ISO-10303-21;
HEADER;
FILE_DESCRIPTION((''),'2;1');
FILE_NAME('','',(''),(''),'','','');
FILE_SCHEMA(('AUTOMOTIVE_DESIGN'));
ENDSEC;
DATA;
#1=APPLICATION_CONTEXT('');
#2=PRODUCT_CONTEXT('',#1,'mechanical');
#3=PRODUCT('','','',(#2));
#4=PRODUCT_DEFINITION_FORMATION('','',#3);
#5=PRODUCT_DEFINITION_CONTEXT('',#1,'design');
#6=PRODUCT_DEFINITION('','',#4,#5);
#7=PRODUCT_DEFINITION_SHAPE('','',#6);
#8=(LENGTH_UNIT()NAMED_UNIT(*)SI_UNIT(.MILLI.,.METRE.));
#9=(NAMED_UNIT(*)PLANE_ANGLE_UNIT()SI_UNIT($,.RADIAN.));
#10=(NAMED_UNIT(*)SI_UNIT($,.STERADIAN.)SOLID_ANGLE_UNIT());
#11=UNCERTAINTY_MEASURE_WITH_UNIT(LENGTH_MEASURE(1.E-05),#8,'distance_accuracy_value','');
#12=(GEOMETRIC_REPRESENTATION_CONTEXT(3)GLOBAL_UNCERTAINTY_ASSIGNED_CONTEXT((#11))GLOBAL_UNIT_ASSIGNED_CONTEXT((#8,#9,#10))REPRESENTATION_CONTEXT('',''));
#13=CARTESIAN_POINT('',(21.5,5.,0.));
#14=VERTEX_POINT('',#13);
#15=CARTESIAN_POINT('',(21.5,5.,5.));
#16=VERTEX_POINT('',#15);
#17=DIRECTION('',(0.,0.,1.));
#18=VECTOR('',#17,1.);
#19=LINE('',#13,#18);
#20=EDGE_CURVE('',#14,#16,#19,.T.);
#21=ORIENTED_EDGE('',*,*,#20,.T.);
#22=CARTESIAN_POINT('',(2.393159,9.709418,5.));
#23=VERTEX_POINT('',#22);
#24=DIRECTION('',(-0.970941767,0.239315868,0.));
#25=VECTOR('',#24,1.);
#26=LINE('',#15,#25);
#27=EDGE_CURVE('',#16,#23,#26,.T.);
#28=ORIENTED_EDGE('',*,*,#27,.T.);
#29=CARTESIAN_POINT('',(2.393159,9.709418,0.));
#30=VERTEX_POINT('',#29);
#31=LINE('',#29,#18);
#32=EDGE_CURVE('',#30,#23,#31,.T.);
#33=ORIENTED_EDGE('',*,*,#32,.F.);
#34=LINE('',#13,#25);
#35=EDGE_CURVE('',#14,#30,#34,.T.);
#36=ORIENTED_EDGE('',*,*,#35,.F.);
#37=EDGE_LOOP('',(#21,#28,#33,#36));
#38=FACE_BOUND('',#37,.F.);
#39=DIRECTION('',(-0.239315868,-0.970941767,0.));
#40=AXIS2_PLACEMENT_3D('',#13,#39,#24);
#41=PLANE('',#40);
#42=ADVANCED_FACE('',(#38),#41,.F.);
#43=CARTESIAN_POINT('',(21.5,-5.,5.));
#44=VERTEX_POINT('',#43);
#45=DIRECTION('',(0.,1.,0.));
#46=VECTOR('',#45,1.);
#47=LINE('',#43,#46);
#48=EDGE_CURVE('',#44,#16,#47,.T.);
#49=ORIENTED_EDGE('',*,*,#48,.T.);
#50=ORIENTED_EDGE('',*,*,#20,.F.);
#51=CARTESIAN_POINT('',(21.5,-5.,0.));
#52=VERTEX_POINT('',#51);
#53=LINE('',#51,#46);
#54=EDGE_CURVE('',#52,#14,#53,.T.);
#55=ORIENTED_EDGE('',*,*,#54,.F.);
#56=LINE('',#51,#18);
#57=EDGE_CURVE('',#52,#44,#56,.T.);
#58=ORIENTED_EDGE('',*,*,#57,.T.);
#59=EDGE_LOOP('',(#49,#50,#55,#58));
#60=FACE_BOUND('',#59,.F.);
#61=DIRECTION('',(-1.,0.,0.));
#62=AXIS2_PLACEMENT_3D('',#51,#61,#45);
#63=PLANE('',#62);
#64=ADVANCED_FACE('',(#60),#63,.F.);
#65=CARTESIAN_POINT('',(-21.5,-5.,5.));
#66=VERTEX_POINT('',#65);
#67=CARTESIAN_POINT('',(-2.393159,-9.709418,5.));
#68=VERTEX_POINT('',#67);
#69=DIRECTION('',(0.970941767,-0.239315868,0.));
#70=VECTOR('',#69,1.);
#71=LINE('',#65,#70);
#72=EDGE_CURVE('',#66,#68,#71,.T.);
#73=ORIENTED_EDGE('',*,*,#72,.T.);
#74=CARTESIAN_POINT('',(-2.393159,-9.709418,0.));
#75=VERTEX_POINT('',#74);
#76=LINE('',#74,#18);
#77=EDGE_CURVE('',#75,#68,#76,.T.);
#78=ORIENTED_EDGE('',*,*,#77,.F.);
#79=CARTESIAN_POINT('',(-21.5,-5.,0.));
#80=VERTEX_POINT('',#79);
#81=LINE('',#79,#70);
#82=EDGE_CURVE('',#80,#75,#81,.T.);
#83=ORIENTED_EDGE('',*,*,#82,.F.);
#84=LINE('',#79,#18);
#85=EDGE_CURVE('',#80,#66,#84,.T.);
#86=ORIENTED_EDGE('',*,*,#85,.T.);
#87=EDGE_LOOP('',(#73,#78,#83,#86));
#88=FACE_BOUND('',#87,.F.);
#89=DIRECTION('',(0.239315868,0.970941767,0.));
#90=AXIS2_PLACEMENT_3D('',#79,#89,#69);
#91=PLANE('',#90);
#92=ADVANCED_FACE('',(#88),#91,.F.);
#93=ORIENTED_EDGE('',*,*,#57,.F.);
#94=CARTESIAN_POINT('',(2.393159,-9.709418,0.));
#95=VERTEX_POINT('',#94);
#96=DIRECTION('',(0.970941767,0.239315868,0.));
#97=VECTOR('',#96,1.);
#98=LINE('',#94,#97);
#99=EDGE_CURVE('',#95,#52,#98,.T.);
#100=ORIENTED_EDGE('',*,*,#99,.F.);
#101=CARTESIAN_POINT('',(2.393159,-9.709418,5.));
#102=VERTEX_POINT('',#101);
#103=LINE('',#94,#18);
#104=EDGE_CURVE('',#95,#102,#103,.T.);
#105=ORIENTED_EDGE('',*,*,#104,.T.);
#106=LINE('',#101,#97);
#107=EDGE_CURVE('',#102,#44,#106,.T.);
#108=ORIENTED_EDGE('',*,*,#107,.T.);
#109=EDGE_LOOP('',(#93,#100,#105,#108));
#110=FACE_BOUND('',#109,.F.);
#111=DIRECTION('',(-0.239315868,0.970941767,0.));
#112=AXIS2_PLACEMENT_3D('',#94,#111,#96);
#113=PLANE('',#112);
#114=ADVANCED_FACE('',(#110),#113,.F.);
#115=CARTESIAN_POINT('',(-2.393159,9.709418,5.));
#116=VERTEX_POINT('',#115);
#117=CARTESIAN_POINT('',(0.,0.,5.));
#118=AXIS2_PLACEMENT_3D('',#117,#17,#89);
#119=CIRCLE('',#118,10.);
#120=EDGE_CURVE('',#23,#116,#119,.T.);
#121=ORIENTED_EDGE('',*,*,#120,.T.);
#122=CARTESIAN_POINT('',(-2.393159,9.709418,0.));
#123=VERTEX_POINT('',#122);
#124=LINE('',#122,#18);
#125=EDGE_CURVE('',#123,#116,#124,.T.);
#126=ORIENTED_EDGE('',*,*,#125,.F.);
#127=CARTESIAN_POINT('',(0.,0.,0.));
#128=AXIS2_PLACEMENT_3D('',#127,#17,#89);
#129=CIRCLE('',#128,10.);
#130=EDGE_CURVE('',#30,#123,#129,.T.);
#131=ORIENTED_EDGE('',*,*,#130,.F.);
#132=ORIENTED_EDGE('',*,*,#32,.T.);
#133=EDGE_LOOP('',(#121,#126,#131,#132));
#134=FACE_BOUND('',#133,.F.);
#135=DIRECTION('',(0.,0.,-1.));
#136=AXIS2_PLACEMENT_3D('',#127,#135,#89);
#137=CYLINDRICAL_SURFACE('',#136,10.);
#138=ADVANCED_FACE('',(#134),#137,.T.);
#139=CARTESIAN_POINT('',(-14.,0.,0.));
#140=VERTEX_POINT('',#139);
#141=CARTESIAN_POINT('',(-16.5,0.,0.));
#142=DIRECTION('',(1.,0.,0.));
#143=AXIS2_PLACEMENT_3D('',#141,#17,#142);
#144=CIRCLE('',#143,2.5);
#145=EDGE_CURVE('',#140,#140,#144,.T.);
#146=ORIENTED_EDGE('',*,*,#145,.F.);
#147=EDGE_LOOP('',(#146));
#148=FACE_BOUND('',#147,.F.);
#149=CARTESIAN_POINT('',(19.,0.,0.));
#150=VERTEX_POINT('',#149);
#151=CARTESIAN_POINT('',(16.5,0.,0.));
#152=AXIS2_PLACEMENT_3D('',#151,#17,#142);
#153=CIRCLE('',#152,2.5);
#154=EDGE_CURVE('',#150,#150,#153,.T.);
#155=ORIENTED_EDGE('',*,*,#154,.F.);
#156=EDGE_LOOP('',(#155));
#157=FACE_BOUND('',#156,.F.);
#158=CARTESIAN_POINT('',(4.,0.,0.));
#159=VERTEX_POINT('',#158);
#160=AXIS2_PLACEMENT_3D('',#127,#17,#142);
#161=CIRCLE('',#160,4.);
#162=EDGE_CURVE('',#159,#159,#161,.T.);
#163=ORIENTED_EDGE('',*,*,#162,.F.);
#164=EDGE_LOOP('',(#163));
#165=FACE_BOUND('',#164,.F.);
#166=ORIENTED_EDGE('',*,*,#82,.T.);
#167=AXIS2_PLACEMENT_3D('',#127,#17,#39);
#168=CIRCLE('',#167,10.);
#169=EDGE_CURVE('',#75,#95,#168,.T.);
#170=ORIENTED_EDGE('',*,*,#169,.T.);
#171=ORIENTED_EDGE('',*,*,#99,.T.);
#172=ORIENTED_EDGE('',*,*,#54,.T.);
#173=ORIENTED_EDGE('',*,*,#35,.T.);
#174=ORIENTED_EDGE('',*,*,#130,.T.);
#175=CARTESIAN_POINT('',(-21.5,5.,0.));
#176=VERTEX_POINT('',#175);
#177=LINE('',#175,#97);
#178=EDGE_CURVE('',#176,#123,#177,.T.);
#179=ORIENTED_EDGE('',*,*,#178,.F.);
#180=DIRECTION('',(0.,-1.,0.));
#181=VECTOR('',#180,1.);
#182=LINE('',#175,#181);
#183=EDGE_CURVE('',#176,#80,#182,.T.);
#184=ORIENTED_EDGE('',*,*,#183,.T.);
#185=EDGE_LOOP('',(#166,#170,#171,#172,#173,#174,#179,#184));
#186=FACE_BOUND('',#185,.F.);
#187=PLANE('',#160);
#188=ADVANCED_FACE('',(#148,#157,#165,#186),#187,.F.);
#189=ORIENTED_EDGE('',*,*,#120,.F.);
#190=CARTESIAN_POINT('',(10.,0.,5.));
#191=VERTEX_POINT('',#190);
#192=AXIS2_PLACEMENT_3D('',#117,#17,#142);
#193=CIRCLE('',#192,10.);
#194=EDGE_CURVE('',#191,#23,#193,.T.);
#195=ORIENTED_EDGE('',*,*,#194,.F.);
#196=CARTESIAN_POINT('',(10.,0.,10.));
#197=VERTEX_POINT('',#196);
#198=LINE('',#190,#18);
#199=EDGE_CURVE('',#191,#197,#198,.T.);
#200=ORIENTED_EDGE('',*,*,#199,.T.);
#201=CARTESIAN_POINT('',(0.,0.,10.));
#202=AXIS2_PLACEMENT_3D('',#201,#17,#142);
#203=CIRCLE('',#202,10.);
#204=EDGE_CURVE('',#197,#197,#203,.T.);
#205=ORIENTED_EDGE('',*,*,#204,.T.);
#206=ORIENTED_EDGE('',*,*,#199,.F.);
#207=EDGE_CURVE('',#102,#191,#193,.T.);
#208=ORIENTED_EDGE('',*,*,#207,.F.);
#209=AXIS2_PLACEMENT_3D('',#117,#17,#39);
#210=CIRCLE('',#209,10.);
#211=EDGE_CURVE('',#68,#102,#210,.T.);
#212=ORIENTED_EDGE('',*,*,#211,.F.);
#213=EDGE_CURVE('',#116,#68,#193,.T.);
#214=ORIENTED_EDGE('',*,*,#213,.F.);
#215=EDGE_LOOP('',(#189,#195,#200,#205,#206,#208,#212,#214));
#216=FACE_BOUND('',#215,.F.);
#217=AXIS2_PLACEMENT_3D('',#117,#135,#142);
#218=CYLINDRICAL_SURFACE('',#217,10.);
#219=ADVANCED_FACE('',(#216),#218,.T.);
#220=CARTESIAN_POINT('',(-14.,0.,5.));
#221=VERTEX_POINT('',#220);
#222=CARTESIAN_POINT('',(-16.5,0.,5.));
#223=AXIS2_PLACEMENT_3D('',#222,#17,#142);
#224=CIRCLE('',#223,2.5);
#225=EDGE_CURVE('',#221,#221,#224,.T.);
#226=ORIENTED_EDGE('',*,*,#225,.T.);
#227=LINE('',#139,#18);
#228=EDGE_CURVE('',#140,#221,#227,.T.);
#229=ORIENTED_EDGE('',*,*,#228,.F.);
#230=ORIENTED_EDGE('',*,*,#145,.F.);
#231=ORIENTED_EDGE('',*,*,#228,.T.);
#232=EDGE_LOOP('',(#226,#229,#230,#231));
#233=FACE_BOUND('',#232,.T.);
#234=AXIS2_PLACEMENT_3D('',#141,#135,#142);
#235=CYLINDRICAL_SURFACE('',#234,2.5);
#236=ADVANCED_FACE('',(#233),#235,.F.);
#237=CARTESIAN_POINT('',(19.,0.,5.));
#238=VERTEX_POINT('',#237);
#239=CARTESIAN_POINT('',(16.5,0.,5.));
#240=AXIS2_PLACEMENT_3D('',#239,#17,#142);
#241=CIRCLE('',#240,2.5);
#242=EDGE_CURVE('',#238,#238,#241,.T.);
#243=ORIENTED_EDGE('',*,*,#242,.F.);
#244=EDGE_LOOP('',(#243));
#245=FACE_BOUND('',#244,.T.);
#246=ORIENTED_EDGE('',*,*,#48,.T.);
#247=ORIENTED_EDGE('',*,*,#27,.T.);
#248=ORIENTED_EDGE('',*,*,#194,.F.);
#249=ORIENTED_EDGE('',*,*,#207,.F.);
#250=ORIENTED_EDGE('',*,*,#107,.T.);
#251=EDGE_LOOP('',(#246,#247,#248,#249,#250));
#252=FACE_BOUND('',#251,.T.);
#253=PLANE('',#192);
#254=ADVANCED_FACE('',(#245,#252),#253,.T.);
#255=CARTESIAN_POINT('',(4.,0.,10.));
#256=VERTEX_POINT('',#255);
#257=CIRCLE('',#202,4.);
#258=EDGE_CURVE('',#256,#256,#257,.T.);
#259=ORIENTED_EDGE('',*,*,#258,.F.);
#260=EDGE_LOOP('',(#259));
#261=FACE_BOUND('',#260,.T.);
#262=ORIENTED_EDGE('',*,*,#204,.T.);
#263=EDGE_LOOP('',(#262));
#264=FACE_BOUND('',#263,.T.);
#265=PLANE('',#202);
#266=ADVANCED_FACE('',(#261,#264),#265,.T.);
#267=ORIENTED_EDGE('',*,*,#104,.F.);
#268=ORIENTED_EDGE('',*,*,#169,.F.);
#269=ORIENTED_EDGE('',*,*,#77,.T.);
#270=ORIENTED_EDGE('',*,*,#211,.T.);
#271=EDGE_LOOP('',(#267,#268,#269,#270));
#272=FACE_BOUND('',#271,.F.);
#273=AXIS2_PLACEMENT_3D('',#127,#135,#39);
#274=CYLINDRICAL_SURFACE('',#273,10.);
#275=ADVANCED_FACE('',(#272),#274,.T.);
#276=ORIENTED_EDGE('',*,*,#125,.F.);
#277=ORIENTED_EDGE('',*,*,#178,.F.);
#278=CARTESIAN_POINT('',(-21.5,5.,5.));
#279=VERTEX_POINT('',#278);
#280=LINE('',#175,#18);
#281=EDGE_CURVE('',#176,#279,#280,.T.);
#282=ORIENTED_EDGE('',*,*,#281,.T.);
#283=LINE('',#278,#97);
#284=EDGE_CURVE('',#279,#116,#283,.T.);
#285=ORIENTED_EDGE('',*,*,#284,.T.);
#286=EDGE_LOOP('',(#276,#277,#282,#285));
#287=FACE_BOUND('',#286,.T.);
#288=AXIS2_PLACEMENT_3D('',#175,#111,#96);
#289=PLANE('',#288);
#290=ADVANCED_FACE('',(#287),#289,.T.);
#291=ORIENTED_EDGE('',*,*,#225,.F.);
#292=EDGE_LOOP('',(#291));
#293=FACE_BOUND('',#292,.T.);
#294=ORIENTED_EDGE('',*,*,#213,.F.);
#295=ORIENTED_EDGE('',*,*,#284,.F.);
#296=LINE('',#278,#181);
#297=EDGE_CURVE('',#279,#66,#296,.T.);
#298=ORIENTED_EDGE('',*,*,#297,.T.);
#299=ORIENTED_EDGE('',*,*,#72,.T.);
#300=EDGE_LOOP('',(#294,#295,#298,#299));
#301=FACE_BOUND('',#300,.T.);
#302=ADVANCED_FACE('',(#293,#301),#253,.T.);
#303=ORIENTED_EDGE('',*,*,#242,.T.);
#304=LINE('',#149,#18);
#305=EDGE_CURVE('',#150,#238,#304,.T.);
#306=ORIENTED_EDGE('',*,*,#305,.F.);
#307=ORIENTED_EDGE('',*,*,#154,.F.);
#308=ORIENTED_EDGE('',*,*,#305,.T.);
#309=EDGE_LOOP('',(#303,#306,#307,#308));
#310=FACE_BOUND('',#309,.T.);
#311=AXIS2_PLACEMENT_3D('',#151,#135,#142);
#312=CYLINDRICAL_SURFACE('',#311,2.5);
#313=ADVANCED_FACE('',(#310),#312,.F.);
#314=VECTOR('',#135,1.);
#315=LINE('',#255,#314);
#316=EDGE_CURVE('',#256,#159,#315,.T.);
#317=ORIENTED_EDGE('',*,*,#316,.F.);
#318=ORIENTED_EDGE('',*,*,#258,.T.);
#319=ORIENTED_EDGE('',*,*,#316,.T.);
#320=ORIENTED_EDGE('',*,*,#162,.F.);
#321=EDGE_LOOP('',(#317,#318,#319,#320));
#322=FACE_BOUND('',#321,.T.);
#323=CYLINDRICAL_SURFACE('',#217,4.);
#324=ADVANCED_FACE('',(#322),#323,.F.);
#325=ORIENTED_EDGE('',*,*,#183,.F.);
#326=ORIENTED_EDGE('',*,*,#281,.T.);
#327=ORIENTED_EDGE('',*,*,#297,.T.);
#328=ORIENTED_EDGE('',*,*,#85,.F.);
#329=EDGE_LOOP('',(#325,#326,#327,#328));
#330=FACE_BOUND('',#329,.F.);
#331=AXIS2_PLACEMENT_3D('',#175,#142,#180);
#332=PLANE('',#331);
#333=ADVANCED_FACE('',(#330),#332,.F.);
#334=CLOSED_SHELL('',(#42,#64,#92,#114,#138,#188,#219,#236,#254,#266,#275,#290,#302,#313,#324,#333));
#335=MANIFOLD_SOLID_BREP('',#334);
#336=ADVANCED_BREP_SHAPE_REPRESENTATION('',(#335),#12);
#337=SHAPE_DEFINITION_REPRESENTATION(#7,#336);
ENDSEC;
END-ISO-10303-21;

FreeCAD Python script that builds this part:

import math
import FreeCAD as App
import Part
import Sketcher

doc = App.newDocument("Part")
body = doc.addObject("PartDesign::Body", "Body")

sketch1 = body.newObject("Sketcher::SketchObject", "Sketch")
sketch1.AttachmentSupport = (doc.getObject("XY_Plane"), [""])
sketch1.MapMode = "FlatFace"
sketch1.addGeometry([
    Part.ArcOfCircle(Part.Circle(App.Vector(0, 0, 0), App.Vector(0, 0, 1), 10), math.radians(-103.846166), math.radians(-76.153834)),
    Part.LineSegment(App.Vector(2.393159, -9.709418, 0), App.Vector(21.5, -5, 0)),
    Part.LineSegment(App.Vector(21.5, -5, 0), App.Vector(21.5, 5, 0)),
    Part.LineSegment(App.Vector(21.5, 5, 0), App.Vector(2.393159, 9.709418, 0)),
    Part.ArcOfCircle(Part.Circle(App.Vector(0, 0, 0), App.Vector(0, 0, 1), 10), math.radians(76.153834), math.radians(103.846166)),
    Part.LineSegment(App.Vector(-2.393159, 9.709418, 0), App.Vector(-21.5, 5, 0)),
    Part.LineSegment(App.Vector(-21.5, 5, 0), App.Vector(-21.5, -5, 0)),
    Part.LineSegment(App.Vector(-21.5, -5, 0), App.Vector(-2.393159, -9.709418, 0)),
    Part.Circle(App.Vector(-16.5, 0, 0), App.Vector(0, 0, 1), 2.5),
    Part.Circle(App.Vector(0, 0, 0), App.Vector(0, 0, 1), 4),
    Part.Circle(App.Vector(16.5, 0, 0), App.Vector(0, 0, 1), 2.5),
], False)
sketch1.addConstraint([
    Sketcher.Constraint("Tangent", 0, 2, 1, 1),
    Sketcher.Constraint("Coincident", 1, 2, 2, 1),
    Sketcher.Constraint("Coincident", 2, 2, 3, 1),
    Sketcher.Constraint("Tangent", 3, 2, 4, 1),
    Sketcher.Constraint("Tangent", 4, 2, 5, 1),
    Sketcher.Constraint("Coincident", 5, 2, 6, 1),
    Sketcher.Constraint("Coincident", 6, 2, 7, 1),
    Sketcher.Constraint("Tangent", 7, 2, 0, 1),
    Sketcher.Constraint("Vertical", 2),
    Sketcher.Constraint("Vertical", 6),
    Sketcher.Constraint("Coincident", 0, 3, -1, 1),
    Sketcher.Constraint("Coincident", 4, 3, -1, 1),
    Sketcher.Constraint("Coincident", 9, 3, -1, 1),
    Sketcher.Constraint("Equal", 0, 4),
    Sketcher.Constraint("Equal", 8, 10),
    Sketcher.Constraint("Symmetric", 8, 3, 10, 3, -1, 1),
    Sketcher.Constraint("Symmetric", 1, 2, 5, 2, -1, 1),
    Sketcher.Constraint("PointOnObject", 8, 3, -1),
    Sketcher.Constraint("Parallel", 3, 7),
    Sketcher.Constraint("Horizontal", 3, 2, 4, 2),
    Sketcher.Constraint("Diameter", 8, 5.0),
    Sketcher.Constraint("Diameter", 9, 8.0),
    Sketcher.Constraint("Radius", 0, 10.0),
    Sketcher.Constraint("DistanceY", 2, 1, 2, 2, 10.0),
    Sketcher.Constraint("DistanceX", 8, 3, 10, 3, 33.0),
    Sketcher.Constraint("DistanceX", 10, 3, 1, 2, 5.0),
])
pad1 = body.newObject("PartDesign::Pad", "Pad")
pad1.Profile = sketch1
pad1.Length = 5

sketch2 = body.newObject("Sketcher::SketchObject", "Sketch001")
sketch2.AttachmentSupport = (doc.getObject("XY_Plane"), [""])
sketch2.MapMode = "FlatFace"
sketch2.AttachmentOffset = App.Placement(App.Vector(0, 0, 5), App.Rotation())
sketch2.addGeometry([
    Part.Circle(App.Vector(0, 0, 0), App.Vector(0, 0, 1), 10),
    Part.Circle(App.Vector(0, 0, 0), App.Vector(0, 0, 1), 4),
], False)
sketch2.addConstraint([
    Sketcher.Constraint("Coincident", 0, 3, -1, 1),
    Sketcher.Constraint("Coincident", 1, 3, -1, 1),
    Sketcher.Constraint("Diameter", 0, 20.0),
    Sketcher.Constraint("Diameter", 1, 8.0),
])
pad2 = body.newObject("PartDesign::Pad", "Pad001")
pad2.Profile = sketch2
pad2.Length = 5

doc.recompute()
